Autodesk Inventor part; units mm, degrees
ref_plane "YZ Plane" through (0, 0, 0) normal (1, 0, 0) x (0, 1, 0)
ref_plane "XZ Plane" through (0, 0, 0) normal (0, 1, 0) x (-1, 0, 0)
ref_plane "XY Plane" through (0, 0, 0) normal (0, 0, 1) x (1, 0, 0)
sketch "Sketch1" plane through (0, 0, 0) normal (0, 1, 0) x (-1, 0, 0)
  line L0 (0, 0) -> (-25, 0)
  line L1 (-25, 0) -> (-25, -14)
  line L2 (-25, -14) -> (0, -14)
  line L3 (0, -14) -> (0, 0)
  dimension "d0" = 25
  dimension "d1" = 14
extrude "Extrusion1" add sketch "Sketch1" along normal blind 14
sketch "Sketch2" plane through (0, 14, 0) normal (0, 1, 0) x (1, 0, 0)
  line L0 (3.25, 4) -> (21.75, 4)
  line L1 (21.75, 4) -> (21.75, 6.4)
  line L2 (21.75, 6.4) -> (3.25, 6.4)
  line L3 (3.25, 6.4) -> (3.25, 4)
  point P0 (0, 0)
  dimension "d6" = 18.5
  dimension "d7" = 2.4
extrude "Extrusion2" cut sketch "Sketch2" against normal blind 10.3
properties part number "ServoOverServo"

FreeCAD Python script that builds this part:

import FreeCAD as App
import Part
import Sketcher
Q = App.Units.Quantity

doc = App.newDocument("Part")
params = doc.addObject("Spreadsheet::Sheet", "Params")
for row, (alias, value) in enumerate([
    ("sketch1_width", "25 mm"),
    ("sketch1_height", "14 mm"),
    ("pad1_length", "14 mm"),
    ("sketch2_width", "18.5 mm"),
    ("sketch2_height", "2.4 mm"),
    ("pocket1_length", "10.3 mm"),
], start=1):
    params.set(f"A{row}", alias)
    params.set(f"B{row}", "=" + value)
    params.setAlias(f"B{row}", alias)

body = doc.addObject("PartDesign::Body", "Body")

sketch1 = doc.addObject("Sketcher::SketchObject", "Sketch")
body.addObject(sketch1)
sketch1.AttachmentSupport = (doc.XZ_Plane, [""])
sketch1.MapMode = "FlatFace"
sketch1.addGeometry([
    Part.LineSegment(App.Vector(0, -14, 0), App.Vector(0, 0, 0)),
    Part.LineSegment(App.Vector(0, 0, 0), App.Vector(25, 0, 0)),
    Part.LineSegment(App.Vector(25, 0, 0), App.Vector(25, -14, 0)),
    Part.LineSegment(App.Vector(25, -14, 0), App.Vector(0, -14, 0)),
], False)
sketch1.addConstraint([
    Sketcher.Constraint("Coincident", 0, 2, 1, 1),
    Sketcher.Constraint("Coincident", 1, 2, 2, 1),
    Sketcher.Constraint("Coincident", 2, 2, 3, 1),
    Sketcher.Constraint("Coincident", 3, 2, 0, 1),
    Sketcher.Constraint("Vertical", 0),
    Sketcher.Constraint("Horizontal", 1),
    Sketcher.Constraint("Vertical", 2),
    Sketcher.Constraint("Horizontal", 3),
    Sketcher.Constraint("Coincident", 0, 2, -1, 1),
    Sketcher.Constraint("DistanceX", 1, 1, 1, 2, Q("25 mm")),
    Sketcher.Constraint("DistanceY", 0, 1, 0, 2, Q("14 mm")),
])
sketch1.setExpression("Constraints[9]", "Params.sketch1_width")
sketch1.setExpression("Constraints[10]", "Params.sketch1_height")
pad1 = doc.addObject("PartDesign::Pad", "Pad")
body.addObject(pad1)
pad1.Profile = sketch1
pad1.setExpression("Length", "Params.pad1_length")
pad1.Reversed = True

sketch2 = doc.addObject("Sketcher::SketchObject", "Sketch001")
body.addObject(sketch2)
sketch2.AttachmentSupport = (doc.XZ_Plane, [""])
sketch2.MapMode = "FlatFace"
sketch2.AttachmentOffset = App.Placement(App.Vector(0, 0, -14), App.Rotation())
sketch2.addGeometry([
    Part.LineSegment(App.Vector(3.2, -6.4, 0), App.Vector(3.2, -4, 0)),
    Part.LineSegment(App.Vector(3.2, -4, 0), App.Vector(21.8, -4, 0)),
    Part.LineSegment(App.Vector(21.8, -4, 0), App.Vector(21.8, -6.4, 0)),
    Part.LineSegment(App.Vector(21.8, -6.4, 0), App.Vector(3.2, -6.4, 0)),
], False)
sketch2.addConstraint([
    Sketcher.Constraint("Coincident", 0, 2, 1, 1),
    Sketcher.Constraint("Coincident", 1, 2, 2, 1),
    Sketcher.Constraint("Coincident", 2, 2, 3, 1),
    Sketcher.Constraint("Coincident", 3, 2, 0, 1),
    Sketcher.Constraint("Vertical", 0),
    Sketcher.Constraint("Horizontal", 1),
    Sketcher.Constraint("Vertical", 2),
    Sketcher.Constraint("Horizontal", 3),
    Sketcher.Constraint("DistanceX", 1, 1, 1, 2, Q("18.5 mm")),
    Sketcher.Constraint("DistanceY", 0, 1, 0, 2, Q("2.4 mm")),
    Sketcher.Constraint("DistanceY", 0, 2, -1, 1, Q("4 mm")),
    Sketcher.Constraint("DistanceX", -1, 1, 0, 2, Q("3.25 mm")),
])
sketch2.setExpression("Constraints[8]", "Params.sketch2_width")
sketch2.setExpression("Constraints[9]", "Params.sketch2_height")
pocket1 = doc.addObject("PartDesign::Pocket", "Pocket")
body.addObject(pocket1)
pocket1.Profile = sketch2
pocket1.setExpression("Length", "Params.pocket1_length")
pocket1.Reversed = True

doc.recompute()
